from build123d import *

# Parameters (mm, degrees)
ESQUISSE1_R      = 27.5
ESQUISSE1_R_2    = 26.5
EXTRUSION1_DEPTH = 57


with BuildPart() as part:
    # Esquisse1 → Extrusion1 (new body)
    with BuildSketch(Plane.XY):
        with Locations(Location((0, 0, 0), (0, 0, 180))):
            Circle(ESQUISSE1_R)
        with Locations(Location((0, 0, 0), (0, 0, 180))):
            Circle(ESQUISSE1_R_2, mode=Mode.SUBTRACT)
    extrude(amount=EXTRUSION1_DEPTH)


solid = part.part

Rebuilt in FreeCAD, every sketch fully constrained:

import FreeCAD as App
import Part
import Sketcher
from FreeCAD import Vector
Q = App.Units.Quantity

doc = App.newDocument("Part")
body = doc.addObject("PartDesign::Body", "Body")

# Sketch on XY plane
sketch1 = body.newObject("Sketcher::SketchObject", "Sketch")
sketch1.AttachmentSupport = (doc.getObject("XY_Plane"), [""])
sketch1.MapMode = "FlatFace"
sketch1.addGeometry([
    Part.Circle(Vector(0, 0, 0), Vector(0, 0, 1), 28),
    Part.Circle(Vector(0, 0, 0), Vector(0, 0, 1), 26),
], False)
sketch1.addConstraint([
    Sketcher.Constraint("Coincident", 0, 3, -1, 1),
    Sketcher.Constraint("Coincident", 1, 3, -1, 1),
    Sketcher.Constraint("Diameter", 0, Q("55 mm")),
    Sketcher.Constraint("Diameter", 1, Q("53 mm")),
])
pad1 = body.newObject("PartDesign::Pad", "Pad")
pad1.Profile = sketch1
pad1.Length = 57

doc.recompute()
